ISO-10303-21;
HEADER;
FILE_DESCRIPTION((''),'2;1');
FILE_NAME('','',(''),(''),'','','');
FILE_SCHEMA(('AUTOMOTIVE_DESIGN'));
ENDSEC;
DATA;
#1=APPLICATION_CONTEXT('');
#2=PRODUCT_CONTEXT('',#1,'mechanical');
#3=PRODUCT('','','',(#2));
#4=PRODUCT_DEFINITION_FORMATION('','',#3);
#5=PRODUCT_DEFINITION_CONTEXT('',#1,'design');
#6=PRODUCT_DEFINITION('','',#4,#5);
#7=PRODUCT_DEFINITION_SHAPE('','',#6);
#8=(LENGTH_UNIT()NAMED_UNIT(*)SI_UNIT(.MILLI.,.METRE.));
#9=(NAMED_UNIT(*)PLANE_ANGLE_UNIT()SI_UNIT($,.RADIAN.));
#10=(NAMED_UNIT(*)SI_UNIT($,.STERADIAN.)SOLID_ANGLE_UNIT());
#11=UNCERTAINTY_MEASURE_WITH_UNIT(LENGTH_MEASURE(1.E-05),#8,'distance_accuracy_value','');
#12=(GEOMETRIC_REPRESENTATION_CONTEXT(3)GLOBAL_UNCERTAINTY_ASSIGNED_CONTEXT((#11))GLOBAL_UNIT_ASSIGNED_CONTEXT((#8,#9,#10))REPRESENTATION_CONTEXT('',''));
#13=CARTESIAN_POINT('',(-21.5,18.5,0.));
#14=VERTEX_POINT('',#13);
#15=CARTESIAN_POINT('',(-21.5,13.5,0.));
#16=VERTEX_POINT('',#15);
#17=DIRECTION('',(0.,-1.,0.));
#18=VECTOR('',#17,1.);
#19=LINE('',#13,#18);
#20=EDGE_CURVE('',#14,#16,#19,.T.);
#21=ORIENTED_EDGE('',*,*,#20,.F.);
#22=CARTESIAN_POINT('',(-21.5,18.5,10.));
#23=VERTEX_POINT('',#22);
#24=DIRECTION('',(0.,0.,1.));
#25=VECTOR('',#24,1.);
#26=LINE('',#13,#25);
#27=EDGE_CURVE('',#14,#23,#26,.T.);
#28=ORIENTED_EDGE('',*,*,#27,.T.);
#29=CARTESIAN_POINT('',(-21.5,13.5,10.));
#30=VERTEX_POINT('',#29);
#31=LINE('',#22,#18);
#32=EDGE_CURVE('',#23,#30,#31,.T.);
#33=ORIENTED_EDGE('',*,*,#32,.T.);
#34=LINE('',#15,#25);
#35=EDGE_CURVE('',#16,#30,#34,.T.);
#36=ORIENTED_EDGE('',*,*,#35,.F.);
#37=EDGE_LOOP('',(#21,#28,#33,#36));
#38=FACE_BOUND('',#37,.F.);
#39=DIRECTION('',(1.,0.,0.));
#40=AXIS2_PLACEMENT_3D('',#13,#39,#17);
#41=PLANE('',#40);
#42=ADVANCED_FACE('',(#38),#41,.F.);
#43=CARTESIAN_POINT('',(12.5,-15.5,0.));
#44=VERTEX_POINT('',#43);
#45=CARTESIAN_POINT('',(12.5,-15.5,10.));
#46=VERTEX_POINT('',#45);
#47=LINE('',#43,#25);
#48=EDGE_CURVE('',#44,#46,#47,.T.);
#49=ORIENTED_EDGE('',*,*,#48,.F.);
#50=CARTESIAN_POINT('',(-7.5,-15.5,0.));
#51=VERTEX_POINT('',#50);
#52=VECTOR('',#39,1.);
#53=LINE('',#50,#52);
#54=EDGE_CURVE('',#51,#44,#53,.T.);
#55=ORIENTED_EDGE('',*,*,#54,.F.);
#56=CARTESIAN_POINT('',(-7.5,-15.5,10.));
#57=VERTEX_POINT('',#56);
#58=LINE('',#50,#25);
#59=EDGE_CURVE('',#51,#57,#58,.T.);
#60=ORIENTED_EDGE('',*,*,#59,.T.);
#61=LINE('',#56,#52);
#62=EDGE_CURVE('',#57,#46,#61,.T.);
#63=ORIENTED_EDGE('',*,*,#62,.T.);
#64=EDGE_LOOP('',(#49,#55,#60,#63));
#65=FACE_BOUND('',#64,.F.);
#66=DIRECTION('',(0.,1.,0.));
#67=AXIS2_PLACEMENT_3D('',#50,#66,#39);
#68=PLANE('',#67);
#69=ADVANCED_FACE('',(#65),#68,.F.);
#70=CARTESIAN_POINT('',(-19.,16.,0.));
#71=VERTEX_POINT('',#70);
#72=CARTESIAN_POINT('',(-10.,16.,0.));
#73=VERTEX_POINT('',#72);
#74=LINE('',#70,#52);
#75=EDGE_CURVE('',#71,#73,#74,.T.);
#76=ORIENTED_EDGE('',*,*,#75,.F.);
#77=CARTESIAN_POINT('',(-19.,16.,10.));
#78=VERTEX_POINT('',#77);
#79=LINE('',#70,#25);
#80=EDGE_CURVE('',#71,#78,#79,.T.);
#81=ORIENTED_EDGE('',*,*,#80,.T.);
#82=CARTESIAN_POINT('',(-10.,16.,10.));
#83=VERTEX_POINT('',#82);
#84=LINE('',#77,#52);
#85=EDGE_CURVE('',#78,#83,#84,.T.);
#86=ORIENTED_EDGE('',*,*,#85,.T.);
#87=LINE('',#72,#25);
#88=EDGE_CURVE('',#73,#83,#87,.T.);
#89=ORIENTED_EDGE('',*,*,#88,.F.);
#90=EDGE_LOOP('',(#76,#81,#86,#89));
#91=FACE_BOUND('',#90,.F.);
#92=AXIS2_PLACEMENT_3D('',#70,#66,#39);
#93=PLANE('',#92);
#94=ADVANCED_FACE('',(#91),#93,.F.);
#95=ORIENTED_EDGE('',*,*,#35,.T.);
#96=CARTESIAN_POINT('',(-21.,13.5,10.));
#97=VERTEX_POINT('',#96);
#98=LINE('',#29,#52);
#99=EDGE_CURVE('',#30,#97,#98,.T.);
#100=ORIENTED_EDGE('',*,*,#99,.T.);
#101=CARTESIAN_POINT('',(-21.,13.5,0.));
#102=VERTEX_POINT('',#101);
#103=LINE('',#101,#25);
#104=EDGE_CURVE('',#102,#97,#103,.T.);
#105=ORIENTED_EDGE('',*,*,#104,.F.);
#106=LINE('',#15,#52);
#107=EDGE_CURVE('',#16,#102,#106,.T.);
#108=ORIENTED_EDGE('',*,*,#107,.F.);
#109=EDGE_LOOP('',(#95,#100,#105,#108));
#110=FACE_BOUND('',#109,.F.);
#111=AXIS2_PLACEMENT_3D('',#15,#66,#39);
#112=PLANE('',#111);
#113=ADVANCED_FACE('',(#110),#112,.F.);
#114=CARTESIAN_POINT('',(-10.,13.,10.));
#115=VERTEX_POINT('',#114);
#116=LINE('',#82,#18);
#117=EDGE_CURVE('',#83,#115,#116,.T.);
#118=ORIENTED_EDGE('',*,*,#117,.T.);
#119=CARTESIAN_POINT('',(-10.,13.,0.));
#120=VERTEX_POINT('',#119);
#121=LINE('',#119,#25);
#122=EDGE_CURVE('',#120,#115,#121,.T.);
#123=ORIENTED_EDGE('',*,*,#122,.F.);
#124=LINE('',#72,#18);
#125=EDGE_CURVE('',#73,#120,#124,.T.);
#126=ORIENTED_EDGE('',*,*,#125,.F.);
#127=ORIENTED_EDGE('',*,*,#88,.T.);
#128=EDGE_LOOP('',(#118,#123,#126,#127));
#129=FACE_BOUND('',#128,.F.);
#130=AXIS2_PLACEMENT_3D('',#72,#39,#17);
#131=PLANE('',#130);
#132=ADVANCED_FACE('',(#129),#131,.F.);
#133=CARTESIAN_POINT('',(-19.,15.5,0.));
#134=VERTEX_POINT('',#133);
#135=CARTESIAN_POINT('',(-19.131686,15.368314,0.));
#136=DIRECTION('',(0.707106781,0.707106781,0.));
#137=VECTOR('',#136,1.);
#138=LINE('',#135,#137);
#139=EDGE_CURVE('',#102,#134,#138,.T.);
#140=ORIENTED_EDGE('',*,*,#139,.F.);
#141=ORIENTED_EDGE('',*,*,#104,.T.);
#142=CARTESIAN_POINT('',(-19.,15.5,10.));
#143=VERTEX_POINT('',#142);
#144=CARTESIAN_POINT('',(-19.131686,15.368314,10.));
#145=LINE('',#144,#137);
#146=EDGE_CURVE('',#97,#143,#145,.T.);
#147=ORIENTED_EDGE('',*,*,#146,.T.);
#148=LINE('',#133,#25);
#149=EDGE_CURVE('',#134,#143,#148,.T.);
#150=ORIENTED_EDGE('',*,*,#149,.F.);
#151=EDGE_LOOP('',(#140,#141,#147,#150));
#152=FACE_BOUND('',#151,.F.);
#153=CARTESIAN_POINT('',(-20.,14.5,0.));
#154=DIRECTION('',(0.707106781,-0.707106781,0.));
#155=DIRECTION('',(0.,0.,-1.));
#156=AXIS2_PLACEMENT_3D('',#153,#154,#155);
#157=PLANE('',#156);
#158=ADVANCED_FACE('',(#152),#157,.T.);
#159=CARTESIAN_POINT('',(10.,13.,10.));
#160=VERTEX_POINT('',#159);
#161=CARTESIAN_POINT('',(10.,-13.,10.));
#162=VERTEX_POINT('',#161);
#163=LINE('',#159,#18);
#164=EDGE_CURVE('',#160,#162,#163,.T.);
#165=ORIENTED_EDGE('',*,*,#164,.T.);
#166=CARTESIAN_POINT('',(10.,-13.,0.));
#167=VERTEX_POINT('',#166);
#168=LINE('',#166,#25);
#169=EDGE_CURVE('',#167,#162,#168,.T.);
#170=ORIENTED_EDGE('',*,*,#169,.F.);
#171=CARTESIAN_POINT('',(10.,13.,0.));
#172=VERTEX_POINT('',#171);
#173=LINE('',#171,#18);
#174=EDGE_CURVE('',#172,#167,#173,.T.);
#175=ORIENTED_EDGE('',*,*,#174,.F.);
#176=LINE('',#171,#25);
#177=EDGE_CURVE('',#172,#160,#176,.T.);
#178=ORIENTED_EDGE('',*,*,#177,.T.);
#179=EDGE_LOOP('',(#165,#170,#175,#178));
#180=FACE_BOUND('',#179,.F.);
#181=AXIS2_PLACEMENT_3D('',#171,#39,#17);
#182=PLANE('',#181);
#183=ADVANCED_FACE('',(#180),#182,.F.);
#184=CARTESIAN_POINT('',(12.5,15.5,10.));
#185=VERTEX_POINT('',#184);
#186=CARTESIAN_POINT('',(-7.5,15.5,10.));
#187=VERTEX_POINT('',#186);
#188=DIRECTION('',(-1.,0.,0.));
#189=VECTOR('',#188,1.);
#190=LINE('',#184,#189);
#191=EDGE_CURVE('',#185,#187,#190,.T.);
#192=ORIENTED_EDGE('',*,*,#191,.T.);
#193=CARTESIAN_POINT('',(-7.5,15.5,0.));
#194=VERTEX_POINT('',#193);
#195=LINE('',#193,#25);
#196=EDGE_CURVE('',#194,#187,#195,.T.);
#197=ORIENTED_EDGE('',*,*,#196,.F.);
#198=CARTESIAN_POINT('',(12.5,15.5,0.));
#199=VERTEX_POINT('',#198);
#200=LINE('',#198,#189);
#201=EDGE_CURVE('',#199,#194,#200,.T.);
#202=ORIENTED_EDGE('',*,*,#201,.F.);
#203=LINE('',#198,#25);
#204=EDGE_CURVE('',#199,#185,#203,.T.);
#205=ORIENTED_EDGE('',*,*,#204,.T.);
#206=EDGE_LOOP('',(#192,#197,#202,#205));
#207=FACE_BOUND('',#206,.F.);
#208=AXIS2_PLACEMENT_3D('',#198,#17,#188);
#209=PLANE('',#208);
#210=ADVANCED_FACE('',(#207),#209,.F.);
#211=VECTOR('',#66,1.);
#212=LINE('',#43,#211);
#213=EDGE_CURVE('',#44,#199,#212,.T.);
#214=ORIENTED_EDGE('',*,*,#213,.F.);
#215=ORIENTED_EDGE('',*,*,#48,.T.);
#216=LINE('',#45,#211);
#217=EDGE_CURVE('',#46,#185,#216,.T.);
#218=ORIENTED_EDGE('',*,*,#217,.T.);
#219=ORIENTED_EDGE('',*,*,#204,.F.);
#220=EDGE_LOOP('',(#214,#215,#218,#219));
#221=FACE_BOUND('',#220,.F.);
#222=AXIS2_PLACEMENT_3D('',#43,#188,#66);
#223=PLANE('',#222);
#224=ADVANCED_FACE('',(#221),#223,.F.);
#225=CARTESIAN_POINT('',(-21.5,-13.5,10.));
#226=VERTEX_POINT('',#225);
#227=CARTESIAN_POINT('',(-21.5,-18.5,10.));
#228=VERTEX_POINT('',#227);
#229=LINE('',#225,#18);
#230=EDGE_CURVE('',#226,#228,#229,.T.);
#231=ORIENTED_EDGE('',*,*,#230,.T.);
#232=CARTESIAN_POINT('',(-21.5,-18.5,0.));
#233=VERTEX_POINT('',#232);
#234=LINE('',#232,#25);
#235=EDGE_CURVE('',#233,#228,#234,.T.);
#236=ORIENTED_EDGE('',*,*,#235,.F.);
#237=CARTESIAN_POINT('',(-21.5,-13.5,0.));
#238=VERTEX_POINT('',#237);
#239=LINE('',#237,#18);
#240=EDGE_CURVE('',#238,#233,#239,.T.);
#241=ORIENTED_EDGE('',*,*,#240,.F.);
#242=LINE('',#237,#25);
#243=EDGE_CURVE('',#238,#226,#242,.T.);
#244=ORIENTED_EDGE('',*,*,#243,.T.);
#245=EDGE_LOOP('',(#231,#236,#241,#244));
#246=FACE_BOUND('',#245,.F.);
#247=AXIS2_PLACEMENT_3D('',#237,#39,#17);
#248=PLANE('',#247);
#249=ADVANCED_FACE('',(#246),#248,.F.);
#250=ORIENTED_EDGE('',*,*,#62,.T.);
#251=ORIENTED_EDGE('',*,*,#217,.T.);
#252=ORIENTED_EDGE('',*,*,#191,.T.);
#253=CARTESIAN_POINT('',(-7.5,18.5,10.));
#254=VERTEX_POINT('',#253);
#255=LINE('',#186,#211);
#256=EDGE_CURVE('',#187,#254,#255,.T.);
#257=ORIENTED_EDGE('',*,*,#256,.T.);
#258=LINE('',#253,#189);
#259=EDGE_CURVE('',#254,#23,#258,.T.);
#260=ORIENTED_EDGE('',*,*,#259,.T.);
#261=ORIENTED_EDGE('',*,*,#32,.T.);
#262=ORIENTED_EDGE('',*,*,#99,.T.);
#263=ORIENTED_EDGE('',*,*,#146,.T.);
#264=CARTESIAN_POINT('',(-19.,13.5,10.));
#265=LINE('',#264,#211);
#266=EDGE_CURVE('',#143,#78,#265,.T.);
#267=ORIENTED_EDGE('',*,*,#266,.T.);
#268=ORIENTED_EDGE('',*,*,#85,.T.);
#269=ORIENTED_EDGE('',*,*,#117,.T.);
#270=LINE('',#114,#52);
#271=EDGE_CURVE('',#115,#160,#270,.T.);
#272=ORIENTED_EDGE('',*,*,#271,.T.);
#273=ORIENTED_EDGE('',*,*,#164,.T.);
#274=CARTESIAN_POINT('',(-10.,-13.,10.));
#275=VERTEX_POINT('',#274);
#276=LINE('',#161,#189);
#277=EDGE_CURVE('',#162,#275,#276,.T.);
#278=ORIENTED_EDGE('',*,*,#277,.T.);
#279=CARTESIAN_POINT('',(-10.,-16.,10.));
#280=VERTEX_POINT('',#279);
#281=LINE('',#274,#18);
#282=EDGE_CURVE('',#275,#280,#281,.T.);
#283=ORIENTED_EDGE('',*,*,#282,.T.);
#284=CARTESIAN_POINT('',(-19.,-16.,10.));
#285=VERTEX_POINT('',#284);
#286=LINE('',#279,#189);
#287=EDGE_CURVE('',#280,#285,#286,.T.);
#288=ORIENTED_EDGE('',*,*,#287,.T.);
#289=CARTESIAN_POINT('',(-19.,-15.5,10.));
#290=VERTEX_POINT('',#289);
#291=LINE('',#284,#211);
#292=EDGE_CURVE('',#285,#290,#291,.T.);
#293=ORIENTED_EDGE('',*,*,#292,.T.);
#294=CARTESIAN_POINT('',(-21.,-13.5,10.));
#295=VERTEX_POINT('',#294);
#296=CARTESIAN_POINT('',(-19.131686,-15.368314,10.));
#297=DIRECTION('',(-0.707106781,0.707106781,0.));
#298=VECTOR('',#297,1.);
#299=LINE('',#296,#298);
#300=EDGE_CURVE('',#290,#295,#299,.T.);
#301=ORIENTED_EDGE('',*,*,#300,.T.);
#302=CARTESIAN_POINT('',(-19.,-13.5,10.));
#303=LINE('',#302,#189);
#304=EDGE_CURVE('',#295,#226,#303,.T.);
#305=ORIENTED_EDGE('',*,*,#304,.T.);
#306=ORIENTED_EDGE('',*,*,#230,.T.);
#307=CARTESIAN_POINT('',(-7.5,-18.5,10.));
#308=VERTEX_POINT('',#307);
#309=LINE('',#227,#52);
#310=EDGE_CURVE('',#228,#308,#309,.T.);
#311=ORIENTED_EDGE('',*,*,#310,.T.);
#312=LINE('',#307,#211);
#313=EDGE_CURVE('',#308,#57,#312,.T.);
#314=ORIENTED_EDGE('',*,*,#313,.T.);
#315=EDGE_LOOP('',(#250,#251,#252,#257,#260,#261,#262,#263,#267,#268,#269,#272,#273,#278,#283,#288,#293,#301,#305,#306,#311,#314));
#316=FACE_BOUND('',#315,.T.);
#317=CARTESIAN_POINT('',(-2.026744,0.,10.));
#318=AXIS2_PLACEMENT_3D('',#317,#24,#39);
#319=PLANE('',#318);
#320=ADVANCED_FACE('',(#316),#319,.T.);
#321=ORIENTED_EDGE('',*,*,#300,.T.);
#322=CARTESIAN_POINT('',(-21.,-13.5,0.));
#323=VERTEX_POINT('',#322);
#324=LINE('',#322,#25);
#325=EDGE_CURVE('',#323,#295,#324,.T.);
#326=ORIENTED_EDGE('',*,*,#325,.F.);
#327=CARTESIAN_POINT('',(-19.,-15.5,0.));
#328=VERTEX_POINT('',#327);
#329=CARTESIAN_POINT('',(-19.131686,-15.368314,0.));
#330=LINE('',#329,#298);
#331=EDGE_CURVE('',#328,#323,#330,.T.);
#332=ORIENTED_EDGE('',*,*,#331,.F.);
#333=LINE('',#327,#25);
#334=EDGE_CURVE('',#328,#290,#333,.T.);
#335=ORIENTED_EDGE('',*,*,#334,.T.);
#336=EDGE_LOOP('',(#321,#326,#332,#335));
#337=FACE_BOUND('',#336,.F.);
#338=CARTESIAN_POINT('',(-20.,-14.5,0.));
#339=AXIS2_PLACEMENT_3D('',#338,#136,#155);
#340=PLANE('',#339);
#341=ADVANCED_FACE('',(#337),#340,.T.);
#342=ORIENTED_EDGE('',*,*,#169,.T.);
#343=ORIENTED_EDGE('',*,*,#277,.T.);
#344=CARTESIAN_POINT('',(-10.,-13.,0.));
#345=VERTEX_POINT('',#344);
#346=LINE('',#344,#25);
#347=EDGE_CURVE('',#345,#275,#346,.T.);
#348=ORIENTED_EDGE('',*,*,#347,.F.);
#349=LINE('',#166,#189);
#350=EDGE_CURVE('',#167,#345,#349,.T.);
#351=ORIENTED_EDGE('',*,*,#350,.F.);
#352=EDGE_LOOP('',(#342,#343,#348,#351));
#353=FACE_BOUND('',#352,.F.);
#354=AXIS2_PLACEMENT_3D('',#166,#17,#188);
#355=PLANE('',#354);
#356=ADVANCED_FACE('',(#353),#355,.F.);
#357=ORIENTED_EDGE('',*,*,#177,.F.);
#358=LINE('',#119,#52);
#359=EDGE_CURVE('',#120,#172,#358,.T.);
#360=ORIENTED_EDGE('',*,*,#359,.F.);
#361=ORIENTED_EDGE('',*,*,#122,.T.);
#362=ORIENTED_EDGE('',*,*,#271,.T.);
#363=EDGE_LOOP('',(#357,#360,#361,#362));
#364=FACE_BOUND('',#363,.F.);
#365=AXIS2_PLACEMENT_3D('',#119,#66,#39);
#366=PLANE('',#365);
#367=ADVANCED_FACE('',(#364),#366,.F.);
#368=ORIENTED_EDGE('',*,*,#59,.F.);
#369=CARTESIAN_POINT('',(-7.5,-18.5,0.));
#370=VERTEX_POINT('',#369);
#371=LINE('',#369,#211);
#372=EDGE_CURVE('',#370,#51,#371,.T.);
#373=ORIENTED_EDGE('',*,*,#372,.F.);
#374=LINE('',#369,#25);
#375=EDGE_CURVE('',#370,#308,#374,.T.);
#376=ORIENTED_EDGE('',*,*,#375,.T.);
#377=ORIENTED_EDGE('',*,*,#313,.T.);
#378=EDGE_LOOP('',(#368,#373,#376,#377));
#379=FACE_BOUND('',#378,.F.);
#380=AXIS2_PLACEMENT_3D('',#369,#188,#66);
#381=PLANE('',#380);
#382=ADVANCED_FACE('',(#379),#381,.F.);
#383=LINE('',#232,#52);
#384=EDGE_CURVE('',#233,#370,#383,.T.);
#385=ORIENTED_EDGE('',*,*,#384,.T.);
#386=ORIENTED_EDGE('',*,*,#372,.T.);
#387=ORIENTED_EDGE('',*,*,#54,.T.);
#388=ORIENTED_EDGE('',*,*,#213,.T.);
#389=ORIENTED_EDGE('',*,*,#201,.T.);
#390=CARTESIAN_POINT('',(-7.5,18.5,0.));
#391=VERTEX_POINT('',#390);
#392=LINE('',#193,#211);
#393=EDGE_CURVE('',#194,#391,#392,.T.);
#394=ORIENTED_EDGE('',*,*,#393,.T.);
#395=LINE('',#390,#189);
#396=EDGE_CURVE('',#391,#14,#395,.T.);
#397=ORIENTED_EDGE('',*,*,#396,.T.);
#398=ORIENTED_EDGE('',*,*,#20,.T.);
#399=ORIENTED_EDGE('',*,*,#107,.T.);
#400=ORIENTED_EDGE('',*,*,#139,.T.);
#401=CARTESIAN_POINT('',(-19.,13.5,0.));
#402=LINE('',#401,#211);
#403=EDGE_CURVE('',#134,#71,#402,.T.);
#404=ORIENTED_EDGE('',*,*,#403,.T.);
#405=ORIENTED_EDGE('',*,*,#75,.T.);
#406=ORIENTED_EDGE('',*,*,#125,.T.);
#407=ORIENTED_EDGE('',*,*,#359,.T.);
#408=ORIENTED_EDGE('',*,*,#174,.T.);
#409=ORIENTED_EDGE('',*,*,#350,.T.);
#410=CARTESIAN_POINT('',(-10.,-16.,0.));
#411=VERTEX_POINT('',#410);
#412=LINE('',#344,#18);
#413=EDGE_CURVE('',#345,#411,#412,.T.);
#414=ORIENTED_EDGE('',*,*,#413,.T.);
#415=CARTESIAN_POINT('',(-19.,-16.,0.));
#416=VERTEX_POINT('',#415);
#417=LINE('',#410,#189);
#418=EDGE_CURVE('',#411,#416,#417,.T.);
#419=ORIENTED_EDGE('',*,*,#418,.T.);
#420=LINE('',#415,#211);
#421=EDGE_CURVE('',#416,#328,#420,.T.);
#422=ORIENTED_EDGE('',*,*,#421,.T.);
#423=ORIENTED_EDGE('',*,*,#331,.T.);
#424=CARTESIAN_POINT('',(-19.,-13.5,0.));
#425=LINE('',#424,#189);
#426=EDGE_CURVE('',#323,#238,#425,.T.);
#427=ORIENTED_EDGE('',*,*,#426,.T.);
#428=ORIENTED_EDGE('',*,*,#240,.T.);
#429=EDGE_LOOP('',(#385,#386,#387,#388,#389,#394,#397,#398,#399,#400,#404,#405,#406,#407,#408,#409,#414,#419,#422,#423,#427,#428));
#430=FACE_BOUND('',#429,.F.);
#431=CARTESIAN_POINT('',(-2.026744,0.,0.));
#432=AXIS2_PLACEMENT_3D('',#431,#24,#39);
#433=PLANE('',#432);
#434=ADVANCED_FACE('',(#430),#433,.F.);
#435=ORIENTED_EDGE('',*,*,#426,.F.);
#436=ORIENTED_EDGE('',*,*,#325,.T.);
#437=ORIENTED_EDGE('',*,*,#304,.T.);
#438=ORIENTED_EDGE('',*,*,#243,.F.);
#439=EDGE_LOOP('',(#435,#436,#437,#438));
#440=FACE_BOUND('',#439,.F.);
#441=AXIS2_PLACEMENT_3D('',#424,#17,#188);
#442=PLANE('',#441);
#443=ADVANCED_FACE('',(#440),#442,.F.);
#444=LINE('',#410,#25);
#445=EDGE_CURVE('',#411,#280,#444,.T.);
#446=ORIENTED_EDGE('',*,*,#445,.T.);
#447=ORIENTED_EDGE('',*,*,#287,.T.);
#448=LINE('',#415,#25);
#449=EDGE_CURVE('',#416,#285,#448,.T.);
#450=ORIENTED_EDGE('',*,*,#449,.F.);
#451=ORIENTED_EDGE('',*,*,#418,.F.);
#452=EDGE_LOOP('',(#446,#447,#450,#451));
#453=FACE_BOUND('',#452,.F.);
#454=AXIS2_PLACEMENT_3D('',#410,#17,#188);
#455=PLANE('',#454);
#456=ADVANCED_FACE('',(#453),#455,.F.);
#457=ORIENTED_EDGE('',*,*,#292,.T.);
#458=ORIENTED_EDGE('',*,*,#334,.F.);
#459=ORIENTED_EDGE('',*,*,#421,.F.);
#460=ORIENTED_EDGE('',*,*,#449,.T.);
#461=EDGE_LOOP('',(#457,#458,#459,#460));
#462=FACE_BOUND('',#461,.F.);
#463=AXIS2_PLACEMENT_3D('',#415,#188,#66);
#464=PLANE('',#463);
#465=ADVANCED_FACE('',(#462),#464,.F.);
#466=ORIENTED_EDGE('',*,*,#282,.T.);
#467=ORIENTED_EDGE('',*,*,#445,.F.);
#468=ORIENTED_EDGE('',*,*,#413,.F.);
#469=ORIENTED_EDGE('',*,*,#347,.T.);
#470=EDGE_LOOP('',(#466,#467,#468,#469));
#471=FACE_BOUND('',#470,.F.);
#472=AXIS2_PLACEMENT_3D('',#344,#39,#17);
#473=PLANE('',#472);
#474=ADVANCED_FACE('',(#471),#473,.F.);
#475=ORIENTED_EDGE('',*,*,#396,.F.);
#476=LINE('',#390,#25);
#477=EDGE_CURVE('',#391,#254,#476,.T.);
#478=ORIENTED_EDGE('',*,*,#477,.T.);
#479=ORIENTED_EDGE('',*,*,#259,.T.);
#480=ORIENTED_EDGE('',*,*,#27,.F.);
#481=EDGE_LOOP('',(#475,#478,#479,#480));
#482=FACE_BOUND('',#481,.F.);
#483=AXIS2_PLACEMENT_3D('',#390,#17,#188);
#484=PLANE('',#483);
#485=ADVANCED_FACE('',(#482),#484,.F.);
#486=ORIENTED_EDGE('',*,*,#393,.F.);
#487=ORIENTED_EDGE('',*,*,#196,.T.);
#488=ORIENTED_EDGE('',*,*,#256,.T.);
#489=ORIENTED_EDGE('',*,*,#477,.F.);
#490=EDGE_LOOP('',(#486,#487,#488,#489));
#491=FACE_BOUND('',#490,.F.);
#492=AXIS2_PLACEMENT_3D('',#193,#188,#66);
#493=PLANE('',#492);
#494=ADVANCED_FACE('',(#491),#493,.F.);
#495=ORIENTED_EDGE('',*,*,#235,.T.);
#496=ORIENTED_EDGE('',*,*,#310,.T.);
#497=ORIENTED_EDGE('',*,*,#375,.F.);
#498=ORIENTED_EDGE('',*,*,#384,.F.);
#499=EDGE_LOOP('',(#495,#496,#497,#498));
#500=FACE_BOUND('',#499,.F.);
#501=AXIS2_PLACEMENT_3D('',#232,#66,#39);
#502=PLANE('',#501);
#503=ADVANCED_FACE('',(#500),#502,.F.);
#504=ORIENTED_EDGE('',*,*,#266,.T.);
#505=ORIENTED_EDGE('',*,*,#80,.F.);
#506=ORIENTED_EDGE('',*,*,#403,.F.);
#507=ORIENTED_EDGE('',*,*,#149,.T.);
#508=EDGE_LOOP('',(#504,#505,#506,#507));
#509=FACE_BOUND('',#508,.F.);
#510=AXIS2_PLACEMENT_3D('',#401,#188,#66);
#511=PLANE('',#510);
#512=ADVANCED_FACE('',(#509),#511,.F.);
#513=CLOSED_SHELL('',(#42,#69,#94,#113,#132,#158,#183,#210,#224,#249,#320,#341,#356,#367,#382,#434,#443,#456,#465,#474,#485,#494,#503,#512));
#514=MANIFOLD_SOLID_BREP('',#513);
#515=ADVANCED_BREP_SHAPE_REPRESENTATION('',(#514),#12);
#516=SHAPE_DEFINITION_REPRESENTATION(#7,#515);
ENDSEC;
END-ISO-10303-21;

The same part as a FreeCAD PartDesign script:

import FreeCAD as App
import Part
import Sketcher

V = App.Vector


def edges_at(feature, points):
    """Names of the edges that pass closest to the given points."""
    edges = feature.Shape.Edges
    near = lambda p: min(range(len(edges)), key=lambda i: edges[i].distToShape(Part.Vertex(*p))[0])
    return sorted({f"Edge{near(p) + 1}" for p in points})


def add_polygon(sketch, points):
    """Adds a closed chain of lines whose ends are joined by coincident constraints."""
    first, n = sketch.GeometryCount, len(points)
    for a, b in zip(points, points[1:] + points[:1]):
        sketch.addGeometry(Part.LineSegment(App.Vector(*a, 0), App.Vector(*b, 0)), False)
    for i in range(n):
        sketch.addConstraint(Sketcher.Constraint("Coincident", first + i, 2, first + (i + 1) % n, 1))

doc = App.newDocument("Part")
body = doc.addObject("PartDesign::Body", "Body")

# Sketch on XY plane
sketch1 = body.newObject("Sketcher::SketchObject", "Sketch")
sketch1.AttachmentSupport = (doc.getObject("XY_Plane"), [""])
sketch1.MapMode = "FlatFace"
add_polygon(sketch1, [(-10, 13), (10, 13), (10, -13), (-10, -13), (-10, -16), (-19, -16), (-19, -13.5), (-21.5, -13.5), (-21.5, -18.5), (-7.5, -18.5), (-7.5, -15.5), (12.5, -15.5), (12.5, 15.5), (-7.5, 15.5), (-7.5, 18.5), (-21.5, 18.5), (-21.5, 13.5), (-19, 13.5), (-19, 16), (-10, 16)])  # lines 0-19
sketch1.addConstraint([
    Sketcher.Constraint("Horizontal", 0),
    Sketcher.Constraint("Vertical", 1),
    Sketcher.Constraint("Horizontal", 2),
    Sketcher.Constraint("Vertical", 3),
    Sketcher.Constraint("Horizontal", 4),
    Sketcher.Constraint("Vertical", 5),
    Sketcher.Constraint("Horizontal", 6),
    Sketcher.Constraint("Vertical", 7),
    Sketcher.Constraint("Horizontal", 8),
    Sketcher.Constraint("Vertical", 9),
    Sketcher.Constraint("Horizontal", 10),
    Sketcher.Constraint("Vertical", 11),
    Sketcher.Constraint("Horizontal", 12),
    Sketcher.Constraint("Vertical", 13),
    Sketcher.Constraint("Horizontal", 14),
    Sketcher.Constraint("Vertical", 15),
    Sketcher.Constraint("Horizontal", 16),
    Sketcher.Constraint("Vertical", 17),
    Sketcher.Constraint("Horizontal", 18),
    Sketcher.Constraint("Vertical", 19),
    Sketcher.Constraint("Symmetric", 0, 2, 2, 2, -1, 1),
    Sketcher.Constraint("Symmetric", 9, 2, 12, 2, -1),
    Sketcher.Constraint("Symmetric", 7, 2, 14, 2, -1),
    Sketcher.Constraint("Symmetric", 5, 2, 16, 2, -1),
    Sketcher.Constraint("Symmetric", 3, 2, 18, 2, -1),
    Sketcher.Constraint("Equal", 2, 10),
    Sketcher.Constraint("Equal", 16, 5),
    Sketcher.Constraint("Equal", 3, 9),
    Sketcher.Constraint("DistanceX", 0, 1, 0, 2, 20.0),
    Sketcher.Constraint("DistanceX", 4, 2, 4, 1, 9.0),
    Sketcher.Constraint("DistanceX", 8, 1, 8, 2, 14.0),
    Sketcher.Constraint("DistanceY", 1, 2, 1, 1, 26.0),
    Sketcher.Constraint("DistanceY", 3, 2, 3, 1, 3.0),
    Sketcher.Constraint("DistanceY", 7, 2, 7, 1, 5.0),
    Sketcher.Constraint("DistanceY", 11, 1, 11, 2, 31.0),
])
pad1 = body.newObject("PartDesign::Pad", "Pad")
pad1.Profile = sketch1
pad1.Length = 10
doc.recompute()

chamfer = body.newObject("PartDesign::Chamfer", "Chamfer")
chamfer.Base = (pad1, edges_at(pad1, [(-19, 13.5, 5), (-19, -13.5, 5)]))
chamfer.Size = 2

doc.recompute()
